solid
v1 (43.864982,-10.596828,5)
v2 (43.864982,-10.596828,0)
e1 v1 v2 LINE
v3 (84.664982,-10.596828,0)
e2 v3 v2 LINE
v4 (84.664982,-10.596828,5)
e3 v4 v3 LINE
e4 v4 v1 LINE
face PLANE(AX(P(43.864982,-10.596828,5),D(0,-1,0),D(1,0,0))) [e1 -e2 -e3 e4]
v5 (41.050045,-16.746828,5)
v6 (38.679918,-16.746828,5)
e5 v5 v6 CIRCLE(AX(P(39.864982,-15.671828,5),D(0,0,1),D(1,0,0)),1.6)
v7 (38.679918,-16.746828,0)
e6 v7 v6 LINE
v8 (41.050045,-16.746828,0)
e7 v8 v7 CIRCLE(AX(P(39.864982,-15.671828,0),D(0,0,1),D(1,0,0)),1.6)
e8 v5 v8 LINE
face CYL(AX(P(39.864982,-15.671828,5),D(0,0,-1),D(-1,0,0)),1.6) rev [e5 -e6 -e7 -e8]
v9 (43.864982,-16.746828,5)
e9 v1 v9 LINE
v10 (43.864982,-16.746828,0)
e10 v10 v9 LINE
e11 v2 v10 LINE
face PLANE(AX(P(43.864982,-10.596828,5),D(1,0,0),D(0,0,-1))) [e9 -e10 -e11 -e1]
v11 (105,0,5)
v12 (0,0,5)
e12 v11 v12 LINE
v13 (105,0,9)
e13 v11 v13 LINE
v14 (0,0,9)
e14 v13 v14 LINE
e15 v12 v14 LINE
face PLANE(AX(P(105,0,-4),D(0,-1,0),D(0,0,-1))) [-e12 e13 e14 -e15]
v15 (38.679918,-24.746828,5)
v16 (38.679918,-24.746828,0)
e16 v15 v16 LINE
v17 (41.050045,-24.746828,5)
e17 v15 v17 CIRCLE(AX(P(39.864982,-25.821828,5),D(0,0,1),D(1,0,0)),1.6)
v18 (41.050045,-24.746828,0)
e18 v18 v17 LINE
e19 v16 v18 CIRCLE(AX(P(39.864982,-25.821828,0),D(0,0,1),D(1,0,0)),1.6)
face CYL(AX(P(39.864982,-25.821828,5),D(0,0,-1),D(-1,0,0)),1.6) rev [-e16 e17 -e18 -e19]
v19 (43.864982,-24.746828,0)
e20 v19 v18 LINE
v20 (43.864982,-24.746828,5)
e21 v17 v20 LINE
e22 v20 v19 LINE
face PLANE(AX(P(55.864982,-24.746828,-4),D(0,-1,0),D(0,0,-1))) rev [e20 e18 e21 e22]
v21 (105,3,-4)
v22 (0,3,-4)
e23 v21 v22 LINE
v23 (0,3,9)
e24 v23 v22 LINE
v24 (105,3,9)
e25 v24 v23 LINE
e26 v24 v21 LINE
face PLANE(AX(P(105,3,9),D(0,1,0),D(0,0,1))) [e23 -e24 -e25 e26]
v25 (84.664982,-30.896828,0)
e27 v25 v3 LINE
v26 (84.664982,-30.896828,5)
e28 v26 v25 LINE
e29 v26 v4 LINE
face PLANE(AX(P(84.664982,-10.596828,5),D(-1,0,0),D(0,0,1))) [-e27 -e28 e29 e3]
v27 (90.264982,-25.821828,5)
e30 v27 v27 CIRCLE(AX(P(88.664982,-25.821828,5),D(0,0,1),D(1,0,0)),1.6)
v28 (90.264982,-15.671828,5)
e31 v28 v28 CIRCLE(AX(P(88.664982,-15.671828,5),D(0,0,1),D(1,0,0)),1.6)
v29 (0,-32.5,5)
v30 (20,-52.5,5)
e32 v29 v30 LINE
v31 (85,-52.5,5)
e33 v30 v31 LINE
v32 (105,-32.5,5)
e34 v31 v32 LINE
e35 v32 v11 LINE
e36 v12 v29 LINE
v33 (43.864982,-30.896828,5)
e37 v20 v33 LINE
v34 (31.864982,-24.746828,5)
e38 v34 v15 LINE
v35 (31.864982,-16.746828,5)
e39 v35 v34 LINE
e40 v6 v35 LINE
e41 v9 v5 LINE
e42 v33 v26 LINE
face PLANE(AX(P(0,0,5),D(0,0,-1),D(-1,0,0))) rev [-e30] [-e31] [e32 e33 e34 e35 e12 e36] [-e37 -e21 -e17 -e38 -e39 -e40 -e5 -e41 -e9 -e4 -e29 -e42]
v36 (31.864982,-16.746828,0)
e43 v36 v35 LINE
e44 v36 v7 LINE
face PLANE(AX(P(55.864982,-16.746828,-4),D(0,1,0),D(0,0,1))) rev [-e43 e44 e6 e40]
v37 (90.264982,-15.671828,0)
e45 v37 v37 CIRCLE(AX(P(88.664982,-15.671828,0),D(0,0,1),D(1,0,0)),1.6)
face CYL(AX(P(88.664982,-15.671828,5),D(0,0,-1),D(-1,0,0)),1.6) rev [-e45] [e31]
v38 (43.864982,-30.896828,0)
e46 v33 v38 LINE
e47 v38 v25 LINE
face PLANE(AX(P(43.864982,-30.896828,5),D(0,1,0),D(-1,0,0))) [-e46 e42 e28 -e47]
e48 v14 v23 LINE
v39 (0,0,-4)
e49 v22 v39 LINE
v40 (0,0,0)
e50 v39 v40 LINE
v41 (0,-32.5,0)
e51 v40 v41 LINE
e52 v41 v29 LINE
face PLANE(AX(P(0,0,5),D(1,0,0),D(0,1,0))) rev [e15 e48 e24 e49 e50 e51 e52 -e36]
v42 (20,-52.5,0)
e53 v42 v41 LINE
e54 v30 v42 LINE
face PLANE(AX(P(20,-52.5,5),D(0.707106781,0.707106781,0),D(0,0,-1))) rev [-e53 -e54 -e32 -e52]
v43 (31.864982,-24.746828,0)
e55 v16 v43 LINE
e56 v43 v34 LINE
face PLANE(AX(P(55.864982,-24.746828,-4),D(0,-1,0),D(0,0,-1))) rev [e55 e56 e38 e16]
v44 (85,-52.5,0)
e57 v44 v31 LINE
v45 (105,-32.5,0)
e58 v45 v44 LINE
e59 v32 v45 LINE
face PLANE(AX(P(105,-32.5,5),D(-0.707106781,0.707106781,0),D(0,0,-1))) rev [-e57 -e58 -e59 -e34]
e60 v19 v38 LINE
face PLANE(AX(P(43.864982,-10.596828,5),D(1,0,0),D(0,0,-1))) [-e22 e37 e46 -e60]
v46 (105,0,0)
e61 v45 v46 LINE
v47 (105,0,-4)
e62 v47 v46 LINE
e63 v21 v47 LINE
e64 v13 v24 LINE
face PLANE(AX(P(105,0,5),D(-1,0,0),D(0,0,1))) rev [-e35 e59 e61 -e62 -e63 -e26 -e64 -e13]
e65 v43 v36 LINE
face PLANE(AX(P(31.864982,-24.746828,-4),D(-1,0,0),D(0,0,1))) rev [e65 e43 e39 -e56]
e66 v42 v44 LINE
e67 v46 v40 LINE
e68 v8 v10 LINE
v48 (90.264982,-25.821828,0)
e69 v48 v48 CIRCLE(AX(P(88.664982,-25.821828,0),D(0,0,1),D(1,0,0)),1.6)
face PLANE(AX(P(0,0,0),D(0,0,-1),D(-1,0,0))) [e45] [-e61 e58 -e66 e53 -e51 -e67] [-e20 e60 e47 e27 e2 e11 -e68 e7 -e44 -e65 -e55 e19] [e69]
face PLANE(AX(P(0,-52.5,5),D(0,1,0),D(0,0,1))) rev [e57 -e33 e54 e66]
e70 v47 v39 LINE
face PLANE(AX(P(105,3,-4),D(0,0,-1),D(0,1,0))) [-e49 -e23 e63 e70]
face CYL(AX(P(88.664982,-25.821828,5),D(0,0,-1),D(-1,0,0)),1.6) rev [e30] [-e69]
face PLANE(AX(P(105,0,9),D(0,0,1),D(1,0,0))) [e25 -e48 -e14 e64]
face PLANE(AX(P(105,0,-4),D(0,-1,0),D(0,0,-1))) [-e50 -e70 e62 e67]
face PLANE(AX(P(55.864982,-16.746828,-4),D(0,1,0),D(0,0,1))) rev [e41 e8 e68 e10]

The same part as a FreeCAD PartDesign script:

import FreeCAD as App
import Part
import Sketcher

V = App.Vector


def edges_at(feature, points):
    """Names of the edges that pass closest to the given points."""
    edges = feature.Shape.Edges
    near = lambda p: min(range(len(edges)), key=lambda i: edges[i].distToShape(Part.Vertex(*p))[0])
    return sorted({f"Edge{near(p) + 1}" for p in points})


def add_polygon(sketch, points):
    """Adds a closed chain of lines whose ends are joined by coincident constraints."""
    first, n = sketch.GeometryCount, len(points)
    for a, b in zip(points, points[1:] + points[:1]):
        sketch.addGeometry(Part.LineSegment(App.Vector(*a, 0), App.Vector(*b, 0)), False)
    for i in range(n):
        sketch.addConstraint(Sketcher.Constraint("Coincident", first + i, 2, first + (i + 1) % n, 1))

doc = App.newDocument("Part")
body = doc.addObject("PartDesign::Body", "Body")

# Sketch on XY plane
sketch1 = body.newObject("Sketcher::SketchObject", "Sketch")
sketch1.AttachmentSupport = (doc.getObject("XY_Plane"), [""])
sketch1.MapMode = "FlatFace"
add_polygon(sketch1, [(0, 0), (0, -52.5), (105, -52.5), (105, 0)])  # lines 0-3
sketch1.addGeometry(Part.Circle(V(39.9, -25.8, 0), V(0, 0, 1), 1.6), False)  # 4
add_polygon(sketch1, [(84.7, -30.9), (43.9, -30.9), (43.9, -10.6), (84.7, -10.6)])  # lines 5-8
sketch1.addGeometry(Part.Circle(V(88.7, -25.8, 0), V(0, 0, 1), 1.6), False)  # 9
sketch1.addGeometry(Part.Circle(V(39.9, -15.7, 0), V(0, 0, 1), 1.6), False)  # 10
sketch1.addGeometry(Part.Circle(V(88.7, -15.7, 0), V(0, 0, 1), 1.6), False)  # 11
sketch1.addConstraint([
    Sketcher.Constraint("Vertical", 0),
    Sketcher.Constraint("Horizontal", 1),
    Sketcher.Constraint("Vertical", 2),
    Sketcher.Constraint("Horizontal", 3),
    Sketcher.Constraint("Horizontal", 5),
    Sketcher.Constraint("Vertical", 6),
    Sketcher.Constraint("Horizontal", 7),
    Sketcher.Constraint("Vertical", 8),
    Sketcher.Constraint("Coincident", 3, 2, -1, 1),
    Sketcher.Constraint("Equal", 4, 9),
    Sketcher.Constraint("Equal", 9, 10),
    Sketcher.Constraint("Equal", 10, 11),
    Sketcher.Constraint("Horizontal", 4, 3, 9, 3),
    Sketcher.Constraint("Horizontal", 10, 3, 11, 3),
    Sketcher.Constraint("Vertical", 4, 3, 10, 3),
    Sketcher.Constraint("Vertical", 9, 3, 11, 3),
    Sketcher.Constraint("Diameter", 4, 3.2),
    Sketcher.Constraint("DistanceX", 1, 1, 1, 2, 105.0),
    Sketcher.Constraint("DistanceX", 5, 2, 5, 1, 40.8),
    Sketcher.Constraint("DistanceY", 0, 2, 0, 1, 52.5),
    Sketcher.Constraint("DistanceY", 6, 1, 6, 2, 20.3),
    Sketcher.Constraint("DistanceX", 4, 3, 5, 2, 4.0),
    Sketcher.Constraint("DistanceX", 7, 2, 11, 3, 4.0),
    Sketcher.Constraint("DistanceY", 4, 3, 10, 3, 10.15),
    Sketcher.Constraint("DistanceY", 5, 2, 4, 3, 5.075),
    Sketcher.Constraint("DistanceX", -1, 1, 4, 3, 39.864982),
    Sketcher.Constraint("DistanceY", 4, 3, -1, 1, 25.821828),
])
pad1 = body.newObject("PartDesign::Pad", "Pad")
pad1.Profile = sketch1
pad1.Length = 5

# Sketch on YZ plane
sketch2 = body.newObject("Sketcher::SketchObject", "Sketch001")
sketch2.AttachmentSupport = (doc.getObject("YZ_Plane"), [""])
sketch2.MapMode = "FlatFace"
add_polygon(sketch2, [(3, -4), (0, -4), (0, 9), (3, 9)])  # lines 0-3
sketch2.addConstraint([
    Sketcher.Constraint("Horizontal", 0),
    Sketcher.Constraint("Vertical", 1),
    Sketcher.Constraint("Horizontal", 2),
    Sketcher.Constraint("Vertical", 3),
    Sketcher.Constraint("PointOnObject", 0, 2, -2),
    Sketcher.Constraint("DistanceX", 0, 2, 0, 1, 3.0),
    Sketcher.Constraint("DistanceY", 1, 1, 1, 2, 13.0),
    Sketcher.Constraint("DistanceY", 0, 2, -1, 1, 4.0),
])
pad2 = body.newObject("PartDesign::Pad", "Pad001")
pad2.Profile = sketch2
pad2.Length = 105

# Sketch on XY plane
sketch3 = body.newObject("Sketcher::SketchObject", "Sketch002")
sketch3.AttachmentSupport = (doc.getObject("XY_Plane"), [""])
sketch3.MapMode = "FlatFace"
sketch3.AttachmentOffset = App.Placement(V(0, 0, 5), App.Rotation())
add_polygon(sketch3, [(32, -17), (32, -25), (56, -25), (56, -17)])  # lines 0-3
sketch3.addConstraint([
    Sketcher.Constraint("Vertical", 0),
    Sketcher.Constraint("Horizontal", 1),
    Sketcher.Constraint("Vertical", 2),
    Sketcher.Constraint("Horizontal", 3),
    Sketcher.Constraint("DistanceX", 1, 1, 1, 2, 24.0),
    Sketcher.Constraint("DistanceY", 0, 2, 0, 1, 8.0),
    Sketcher.Constraint("DistanceX", -1, 1, 0, 2, 31.864982),
    Sketcher.Constraint("DistanceY", 0, 2, -1, 1, 24.746828),
])
pocket1 = body.newObject("PartDesign::Pocket", "Pocket")
pocket1.Profile = sketch3
pocket1.Type = "ThroughAll"
doc.recompute()

chamfer = body.newObject("PartDesign::Chamfer", "Chamfer")
chamfer.Base = (pocket1, edges_at(pocket1, [(105, -52.5, 2.5), (0, -52.5, 2.5)]))
chamfer.Size = 20

doc.recompute()
